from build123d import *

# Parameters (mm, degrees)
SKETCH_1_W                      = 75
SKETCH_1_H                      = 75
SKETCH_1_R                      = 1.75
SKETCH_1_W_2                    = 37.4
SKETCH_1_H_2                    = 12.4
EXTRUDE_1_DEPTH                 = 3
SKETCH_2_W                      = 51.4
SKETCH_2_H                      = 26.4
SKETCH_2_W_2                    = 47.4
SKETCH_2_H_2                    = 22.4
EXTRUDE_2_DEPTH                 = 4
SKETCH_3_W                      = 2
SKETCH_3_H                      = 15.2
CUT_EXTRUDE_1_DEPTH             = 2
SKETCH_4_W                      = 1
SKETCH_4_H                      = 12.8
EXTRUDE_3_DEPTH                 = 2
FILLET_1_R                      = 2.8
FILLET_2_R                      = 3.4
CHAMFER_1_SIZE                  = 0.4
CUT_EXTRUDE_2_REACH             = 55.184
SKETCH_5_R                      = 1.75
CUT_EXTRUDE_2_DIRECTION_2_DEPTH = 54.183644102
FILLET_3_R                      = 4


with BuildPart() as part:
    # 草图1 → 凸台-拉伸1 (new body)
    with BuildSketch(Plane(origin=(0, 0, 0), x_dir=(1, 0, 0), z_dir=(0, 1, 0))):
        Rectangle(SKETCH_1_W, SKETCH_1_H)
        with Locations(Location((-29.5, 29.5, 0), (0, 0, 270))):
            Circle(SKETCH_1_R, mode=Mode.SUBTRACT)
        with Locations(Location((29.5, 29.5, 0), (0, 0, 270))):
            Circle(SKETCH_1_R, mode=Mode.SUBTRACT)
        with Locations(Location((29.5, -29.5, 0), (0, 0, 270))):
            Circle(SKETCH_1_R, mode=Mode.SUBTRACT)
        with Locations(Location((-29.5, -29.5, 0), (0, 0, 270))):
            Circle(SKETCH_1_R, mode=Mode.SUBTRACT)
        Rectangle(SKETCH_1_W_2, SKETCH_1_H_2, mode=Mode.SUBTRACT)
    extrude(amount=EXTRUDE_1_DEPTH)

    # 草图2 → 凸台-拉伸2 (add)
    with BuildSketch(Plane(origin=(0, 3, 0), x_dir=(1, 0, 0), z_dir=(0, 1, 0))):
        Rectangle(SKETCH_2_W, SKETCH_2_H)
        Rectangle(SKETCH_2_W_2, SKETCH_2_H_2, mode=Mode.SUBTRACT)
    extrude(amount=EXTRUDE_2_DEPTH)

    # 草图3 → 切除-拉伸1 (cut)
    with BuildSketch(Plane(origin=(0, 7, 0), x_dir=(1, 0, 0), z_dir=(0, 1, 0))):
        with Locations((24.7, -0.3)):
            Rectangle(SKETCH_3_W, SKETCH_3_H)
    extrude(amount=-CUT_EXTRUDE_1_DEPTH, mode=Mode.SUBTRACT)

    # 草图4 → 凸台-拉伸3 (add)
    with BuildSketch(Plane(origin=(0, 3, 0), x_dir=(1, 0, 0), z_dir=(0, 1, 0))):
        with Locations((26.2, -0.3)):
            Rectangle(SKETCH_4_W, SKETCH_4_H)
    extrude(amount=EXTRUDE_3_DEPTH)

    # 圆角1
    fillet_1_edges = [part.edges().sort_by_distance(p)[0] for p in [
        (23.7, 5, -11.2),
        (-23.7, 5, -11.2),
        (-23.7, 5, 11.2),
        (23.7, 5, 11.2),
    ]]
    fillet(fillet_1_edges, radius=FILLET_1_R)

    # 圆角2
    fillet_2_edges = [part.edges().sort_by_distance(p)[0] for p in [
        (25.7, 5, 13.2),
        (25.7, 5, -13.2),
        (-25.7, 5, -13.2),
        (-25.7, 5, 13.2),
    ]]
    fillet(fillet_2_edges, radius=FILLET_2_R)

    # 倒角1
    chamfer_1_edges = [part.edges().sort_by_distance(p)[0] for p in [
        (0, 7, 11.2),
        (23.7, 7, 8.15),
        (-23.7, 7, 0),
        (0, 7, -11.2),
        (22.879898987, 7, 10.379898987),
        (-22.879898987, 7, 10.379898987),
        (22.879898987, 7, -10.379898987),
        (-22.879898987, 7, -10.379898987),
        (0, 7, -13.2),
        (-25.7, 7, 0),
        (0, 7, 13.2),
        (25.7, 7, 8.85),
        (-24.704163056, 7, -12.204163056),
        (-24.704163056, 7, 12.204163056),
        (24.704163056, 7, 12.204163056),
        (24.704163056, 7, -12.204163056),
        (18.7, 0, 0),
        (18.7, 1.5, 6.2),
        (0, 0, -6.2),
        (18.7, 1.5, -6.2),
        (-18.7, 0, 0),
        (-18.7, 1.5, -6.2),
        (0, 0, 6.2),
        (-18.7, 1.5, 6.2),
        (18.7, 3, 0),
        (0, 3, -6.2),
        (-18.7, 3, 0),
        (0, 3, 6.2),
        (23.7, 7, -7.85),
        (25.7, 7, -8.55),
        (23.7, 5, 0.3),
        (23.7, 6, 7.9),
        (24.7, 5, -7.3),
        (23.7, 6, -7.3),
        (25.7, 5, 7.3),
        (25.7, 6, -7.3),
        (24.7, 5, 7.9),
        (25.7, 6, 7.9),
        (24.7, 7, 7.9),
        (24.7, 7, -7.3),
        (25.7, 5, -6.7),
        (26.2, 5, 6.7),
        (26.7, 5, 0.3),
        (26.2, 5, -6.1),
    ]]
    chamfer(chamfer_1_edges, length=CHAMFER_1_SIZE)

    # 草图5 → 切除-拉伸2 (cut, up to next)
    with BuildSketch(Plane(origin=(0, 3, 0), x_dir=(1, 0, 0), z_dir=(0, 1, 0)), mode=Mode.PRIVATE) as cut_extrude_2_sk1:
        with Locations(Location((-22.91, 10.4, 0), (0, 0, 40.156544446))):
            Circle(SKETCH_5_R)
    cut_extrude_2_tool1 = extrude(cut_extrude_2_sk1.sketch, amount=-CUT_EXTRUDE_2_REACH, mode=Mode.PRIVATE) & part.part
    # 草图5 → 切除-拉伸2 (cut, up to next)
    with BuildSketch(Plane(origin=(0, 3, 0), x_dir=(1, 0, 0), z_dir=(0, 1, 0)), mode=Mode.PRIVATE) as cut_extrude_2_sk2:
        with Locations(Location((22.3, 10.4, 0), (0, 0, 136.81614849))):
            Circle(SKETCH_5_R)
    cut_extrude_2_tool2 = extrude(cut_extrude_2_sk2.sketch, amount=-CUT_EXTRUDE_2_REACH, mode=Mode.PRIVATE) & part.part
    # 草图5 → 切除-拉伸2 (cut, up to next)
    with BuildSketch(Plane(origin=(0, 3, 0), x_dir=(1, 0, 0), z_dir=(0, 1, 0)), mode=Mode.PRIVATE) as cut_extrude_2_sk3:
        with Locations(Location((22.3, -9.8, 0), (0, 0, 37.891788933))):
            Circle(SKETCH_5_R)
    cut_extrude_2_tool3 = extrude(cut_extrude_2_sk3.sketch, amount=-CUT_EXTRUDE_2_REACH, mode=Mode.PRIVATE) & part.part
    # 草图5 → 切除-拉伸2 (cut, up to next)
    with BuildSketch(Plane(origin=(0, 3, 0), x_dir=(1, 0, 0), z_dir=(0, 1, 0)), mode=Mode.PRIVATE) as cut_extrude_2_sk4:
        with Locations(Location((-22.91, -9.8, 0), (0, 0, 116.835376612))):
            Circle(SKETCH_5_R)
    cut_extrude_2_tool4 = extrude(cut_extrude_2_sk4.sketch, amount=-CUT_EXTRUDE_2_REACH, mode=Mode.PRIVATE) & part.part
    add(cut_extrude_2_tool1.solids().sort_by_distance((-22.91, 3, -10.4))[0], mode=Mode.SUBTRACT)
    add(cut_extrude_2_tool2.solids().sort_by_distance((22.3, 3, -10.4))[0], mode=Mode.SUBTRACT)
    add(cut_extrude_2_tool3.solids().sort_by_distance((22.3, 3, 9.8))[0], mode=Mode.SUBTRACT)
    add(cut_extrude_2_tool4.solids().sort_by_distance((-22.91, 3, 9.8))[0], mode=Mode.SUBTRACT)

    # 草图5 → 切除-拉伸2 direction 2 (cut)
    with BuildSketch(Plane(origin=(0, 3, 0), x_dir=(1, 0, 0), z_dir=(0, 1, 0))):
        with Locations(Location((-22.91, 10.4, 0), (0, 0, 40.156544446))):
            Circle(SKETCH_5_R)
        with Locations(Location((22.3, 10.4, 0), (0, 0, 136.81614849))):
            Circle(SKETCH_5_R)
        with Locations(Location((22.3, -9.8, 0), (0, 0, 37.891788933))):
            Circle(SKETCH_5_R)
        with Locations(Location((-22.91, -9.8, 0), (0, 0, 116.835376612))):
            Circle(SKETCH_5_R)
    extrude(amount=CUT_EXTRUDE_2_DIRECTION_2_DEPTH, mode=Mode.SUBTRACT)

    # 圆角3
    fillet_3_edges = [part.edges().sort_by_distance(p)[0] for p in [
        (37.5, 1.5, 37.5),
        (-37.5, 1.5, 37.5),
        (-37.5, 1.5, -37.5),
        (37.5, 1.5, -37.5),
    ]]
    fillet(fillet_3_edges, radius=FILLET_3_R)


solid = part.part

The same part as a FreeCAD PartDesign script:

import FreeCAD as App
import Part
import Sketcher


def edges_at(feature, points):
    """Names of the edges that pass closest to the given points."""
    edges = feature.Shape.Edges
    near = lambda p: min(range(len(edges)), key=lambda i: edges[i].distToShape(Part.Vertex(*p))[0])
    return sorted({f"Edge{near(p) + 1}" for p in points})


def add_polygon(sketch, points):
    """Adds a closed chain of lines whose ends are joined by coincident constraints."""
    first, n = sketch.GeometryCount, len(points)
    for a, b in zip(points, points[1:] + points[:1]):
        sketch.addGeometry(Part.LineSegment(App.Vector(*a, 0), App.Vector(*b, 0)), False)
    for i in range(n):
        sketch.addConstraint(Sketcher.Constraint("Coincident", first + i, 2, first + (i + 1) % n, 1))

doc = App.newDocument("Part")
body = doc.addObject("PartDesign::Body", "Body")

sketch1 = body.newObject("Sketcher::SketchObject", "Sketch")
sketch1.AttachmentSupport = (doc.getObject("XZ_Plane"), [""])
sketch1.MapMode = "FlatFace"
add_polygon(sketch1, [(-37.5, -37.5), (-37.5, 37.5), (37.5, 37.5), (37.5, -37.5)])
sketch1.addGeometry(Part.Circle(App.Vector(-29.5, 29.5, 0), App.Vector(0, 0, 1), 1.75), False)
sketch1.addGeometry(Part.Circle(App.Vector(29.5, 29.5, 0), App.Vector(0, 0, 1), 1.75), False)
sketch1.addGeometry(Part.Circle(App.Vector(-29.5, -29.5, 0), App.Vector(0, 0, 1), 1.75), False)
add_polygon(sketch1, [(18.7, 6.2), (-18.7, 6.2), (-18.7, -6.2), (18.7, -6.2)])
sketch1.addGeometry(Part.Circle(App.Vector(29.5, -29.5, 0), App.Vector(0, 0, 1), 1.75), False)
sketch1.addConstraint([
    Sketcher.Constraint("Vertical", 0),
    Sketcher.Constraint("Horizontal", 1),
    Sketcher.Constraint("Vertical", 2),
    Sketcher.Constraint("Horizontal", 3),
    Sketcher.Constraint("Horizontal", 7),
    Sketcher.Constraint("Vertical", 8),
    Sketcher.Constraint("Horizontal", 9),
    Sketcher.Constraint("Vertical", 10),
    Sketcher.Constraint("Equal", 4, 5),
    Sketcher.Constraint("Equal", 5, 6),
    Sketcher.Constraint("Equal", 6, 11),
    Sketcher.Constraint("Symmetric", 5, 3, 6, 3, -1, 1),
    Sketcher.Constraint("Symmetric", 4, 3, 11, 3, -1, 1),
    Sketcher.Constraint("Symmetric", 0, 2, 2, 2, -1, 1),
    Sketcher.Constraint("Symmetric", 7, 2, 9, 2, -1, 1),
    Sketcher.Constraint("Symmetric", 4, 3, 5, 3, -2),
    Sketcher.Constraint("Equal", 3, 0),
    Sketcher.Constraint("Diameter", 4, 3.5),
    Sketcher.Constraint("DistanceX", 1, 1, 1, 2, 75.0),
    Sketcher.Constraint("DistanceX", 7, 2, 7, 1, 37.4),
    Sketcher.Constraint("DistanceY", 8, 2, 8, 1, 12.4),
    Sketcher.Constraint("DistanceX", 4, 3, 5, 3, 59.0),
    Sketcher.Constraint("DistanceY", 6, 3, 4, 3, 59.0),
])
pad1 = body.newObject("PartDesign::Pad", "Pad")
pad1.Profile = sketch1
pad1.Length = 3
pad1.Reversed = True

sketch2 = body.newObject("Sketcher::SketchObject", "Sketch001")
sketch2.AttachmentSupport = (doc.getObject("XZ_Plane"), [""])
sketch2.MapMode = "FlatFace"
sketch2.AttachmentOffset = App.Placement(App.Vector(0, 0, -3), App.Rotation())
add_polygon(sketch2, [(-25.7, -13.2), (-25.7, 13.2), (25.7, 13.2), (25.7, -13.2)])
add_polygon(sketch2, [(23.7, 11.2), (-23.7, 11.2), (-23.7, -11.2), (23.7, -11.2)])
sketch2.addConstraint([
    Sketcher.Constraint("Vertical", 0),
    Sketcher.Constraint("Horizontal", 1),
    Sketcher.Constraint("Vertical", 2),
    Sketcher.Constraint("Horizontal", 3),
    Sketcher.Constraint("Horizontal", 4),
    Sketcher.Constraint("Vertical", 5),
    Sketcher.Constraint("Horizontal", 6),
    Sketcher.Constraint("Vertical", 7),
    Sketcher.Constraint("Symmetric", 0, 2, 2, 2, -1, 1),
    Sketcher.Constraint("Symmetric", 4, 2, 6, 2, -1, 1),
    Sketcher.Constraint("DistanceX", 1, 1, 1, 2, 51.4),
    Sketcher.Constraint("DistanceX", 4, 2, 4, 1, 47.4),
    Sketcher.Constraint("DistanceY", 0, 1, 0, 2, 26.4),
    Sketcher.Constraint("DistanceY", 5, 2, 5, 1, 22.4),
])
pad2 = body.newObject("PartDesign::Pad", "Pad001")
pad2.Profile = sketch2
pad2.Length = 4
pad2.Reversed = True

sketch3 = body.newObject("Sketcher::SketchObject", "Sketch002")
sketch3.AttachmentSupport = (doc.getObject("XZ_Plane"), [""])
sketch3.MapMode = "FlatFace"
sketch3.AttachmentOffset = App.Placement(App.Vector(0, 0, -7), App.Rotation())
add_polygon(sketch3, [(23.7, -7.3), (23.7, 7.9), (25.7, 7.9), (25.7, -7.3)])
sketch3.addConstraint([
    Sketcher.Constraint("Vertical", 0),
    Sketcher.Constraint("Horizontal", 1),
    Sketcher.Constraint("Vertical", 2),
    Sketcher.Constraint("Horizontal", 3),
    Sketcher.Constraint("DistanceX", 1, 1, 1, 2, 2.0),
    Sketcher.Constraint("DistanceY", 0, 1, 0, 2, 15.2),
    Sketcher.Constraint("DistanceX", -1, 1, 0, 2, 23.7),
    Sketcher.Constraint("DistanceY", -1, 1, 0, 2, 7.9),
])
pocket1 = body.newObject("PartDesign::Pocket", "Pocket")
pocket1.Profile = sketch3
pocket1.Length = 2
pocket1.Reversed = True

sketch4 = body.newObject("Sketcher::SketchObject", "Sketch003")
sketch4.AttachmentSupport = (doc.getObject("XZ_Plane"), [""])
sketch4.MapMode = "FlatFace"
sketch4.AttachmentOffset = App.Placement(App.Vector(0, 0, -3), App.Rotation())
add_polygon(sketch4, [(25.7, -6.1), (25.7, 6.7), (26.7, 6.7), (26.7, -6.1)])
sketch4.addConstraint([
    Sketcher.Constraint("Vertical", 0),
    Sketcher.Constraint("Horizontal", 1),
    Sketcher.Constraint("Vertical", 2),
    Sketcher.Constraint("Horizontal", 3),
    Sketcher.Constraint("DistanceX", 1, 1, 1, 2, 1.0),
    Sketcher.Constraint("DistanceY", 0, 1, 0, 2, 12.8),
    Sketcher.Constraint("DistanceX", -1, 1, 0, 2, 25.7),
    Sketcher.Constraint("DistanceY", -1, 1, 0, 2, 6.7),
])
pad3 = body.newObject("PartDesign::Pad", "Pad002")
pad3.Profile = sketch4
pad3.Length = 2
pad3.Reversed = True
doc.recompute()

fillet = body.newObject("PartDesign::Fillet", "Fillet")
fillet.Base = (pad3, edges_at(pad3, [
    (23.7, 5, -11.2),
    (-23.7, 5, -11.2),
    (-23.7, 5, 11.2),
    (23.7, 5, 11.2),
]))
fillet.Radius = 2.8
doc.recompute()

fillet2 = body.newObject("PartDesign::Fillet", "Fillet001")
fillet2.Base = (fillet, edges_at(fillet, [
    (25.7, 5, 13.2),
    (25.7, 5, -13.2),
    (-25.7, 5, -13.2),
    (-25.7, 5, 13.2),
]))
fillet2.Radius = 3.4
doc.recompute()

chamfer = body.newObject("PartDesign::Chamfer", "Chamfer")
chamfer.Base = (fillet2, edges_at(fillet2, [
    (0, 7, 11.2),
    (23.7, 7, 8.15),
    (-23.7, 7, 0),
    (0, 7, -11.2),
    (22.88, 7, 10.38),
    (-22.88, 7, 10.38),
    (22.88, 7, -10.38),
    (-22.88, 7, -10.38),
    (0, 7, -13.2),
    (-25.7, 7, 0),
    (0, 7, 13.2),
    (25.7, 7, 8.85),
    (-24.704, 7, -12.204),
    (-24.704, 7, 12.204),
    (24.704, 7, 12.204),
    (24.704, 7, -12.204),
    (18.7, 0, 0),
    (18.7, 1.5, 6.2),
    (0, 0, -6.2),
    (18.7, 1.5, -6.2),
    (-18.7, 0, 0),
    (-18.7, 1.5, -6.2),
    (0, 0, 6.2),
    (-18.7, 1.5, 6.2),
    (18.7, 3, 0),
    (0, 3, -6.2),
    (-18.7, 3, 0),
    (0, 3, 6.2),
    (23.7, 7, -7.85),
    (25.7, 7, -8.55),
    (23.7, 5, 0.3),
    (23.7, 6, 7.9),
    (24.7, 5, -7.3),
    (23.7, 6, -7.3),
    (25.7, 5, 7.3),
    (25.7, 6, -7.3),
    (24.7, 5, 7.9),
    (25.7, 6, 7.9),
    (24.7, 7, 7.9),
    (24.7, 7, -7.3),
    (25.7, 5, -6.7),
    (26.2, 5, 6.7),
    (26.7, 5, 0.3),
    (26.2, 5, -6.1),
]))
chamfer.Size = 0.4

sketch5 = body.newObject("Sketcher::SketchObject", "Sketch004")
sketch5.AttachmentSupport = (doc.getObject("XZ_Plane"), [""])
sketch5.MapMode = "FlatFace"
sketch5.AttachmentOffset = App.Placement(App.Vector(0, 0, -3), App.Rotation())
sketch5.addGeometry(Part.Circle(App.Vector(-22.91, -10.4, 0), App.Vector(0, 0, 1), 1.75), False)
sketch5.addConstraint([
    Sketcher.Constraint("Diameter", 0, 3.5),
    Sketcher.Constraint("DistanceY", 0, 3, -1, 1, 10.4),
    Sketcher.Constraint("DistanceX", 0, 3, -1, 1, 22.91),
])
pocket2 = body.newObject("PartDesign::Pocket", "Pocket001")
pocket2.Profile = sketch5
pocket2.Type = "UpToFirst"
pocket2.Reversed = True

sketch6 = body.newObject("Sketcher::SketchObject", "Sketch005")
sketch6.AttachmentSupport = (doc.getObject("XZ_Plane"), [""])
sketch6.MapMode = "FlatFace"
sketch6.AttachmentOffset = App.Placement(App.Vector(0, 0, -3), App.Rotation())
sketch6.addGeometry(Part.Circle(App.Vector(22.3, -10.4, 0), App.Vector(0, 0, 1), 1.75), False)
sketch6.addConstraint([
    Sketcher.Constraint("Diameter", 0, 3.5),
    Sketcher.Constraint("DistanceX", -1, 1, 0, 3, 22.3),
    Sketcher.Constraint("DistanceY", 0, 3, -1, 1, 10.4),
])
pocket3 = body.newObject("PartDesign::Pocket", "Pocket002")
pocket3.Profile = sketch6
pocket3.Type = "UpToFirst"
pocket3.Reversed = True

sketch7 = body.newObject("Sketcher::SketchObject", "Sketch006")
sketch7.AttachmentSupport = (doc.getObject("XZ_Plane"), [""])
sketch7.MapMode = "FlatFace"
sketch7.AttachmentOffset = App.Placement(App.Vector(0, 0, -3), App.Rotation())
sketch7.addGeometry(Part.Circle(App.Vector(22.3, 9.8, 0), App.Vector(0, 0, 1), 1.75), False)
sketch7.addConstraint([
    Sketcher.Constraint("Diameter", 0, 3.5),
    Sketcher.Constraint("DistanceX", -1, 1, 0, 3, 22.3),
    Sketcher.Constraint("DistanceY", -1, 1, 0, 3, 9.8),
])
pocket4 = body.newObject("PartDesign::Pocket", "Pocket003")
pocket4.Profile = sketch7
pocket4.Type = "UpToFirst"
pocket4.Reversed = True

sketch8 = body.newObject("Sketcher::SketchObject", "Sketch007")
sketch8.AttachmentSupport = (doc.getObject("XZ_Plane"), [""])
sketch8.MapMode = "FlatFace"
sketch8.AttachmentOffset = App.Placement(App.Vector(0, 0, -3), App.Rotation())
sketch8.addGeometry(Part.Circle(App.Vector(-22.91, 9.8, 0), App.Vector(0, 0, 1), 1.75), False)
sketch8.addConstraint([
    Sketcher.Constraint("Diameter", 0, 3.5),
    Sketcher.Constraint("DistanceY", -1, 1, 0, 3, 9.8),
    Sketcher.Constraint("DistanceX", 0, 3, -1, 1, 22.91),
])
pocket5 = body.newObject("PartDesign::Pocket", "Pocket004")
pocket5.Profile = sketch8
pocket5.Type = "UpToFirst"
pocket5.Reversed = True

sketch9 = body.newObject("Sketcher::SketchObject", "Sketch008")
sketch9.AttachmentSupport = (doc.getObject("XZ_Plane"), [""])
sketch9.MapMode = "FlatFace"
sketch9.AttachmentOffset = App.Placement(App.Vector(0, 0, -3), App.Rotation())
sketch9.addGeometry([
    Part.Circle(App.Vector(-22.91, -10.4, 0), App.Vector(0, 0, 1), 1.75),
    Part.Circle(App.Vector(22.3, -10.4, 0), App.Vector(0, 0, 1), 1.75),
    Part.Circle(App.Vector(22.3, 9.8, 0), App.Vector(0, 0, 1), 1.75),
    Part.Circle(App.Vector(-22.91, 9.8, 0), App.Vector(0, 0, 1), 1.75),
], False)
sketch9.addConstraint([
    Sketcher.Constraint("Equal", 0, 1),
    Sketcher.Constraint("Equal", 1, 2),
    Sketcher.Constraint("Equal", 2, 3),
    Sketcher.Constraint("Horizontal", 0, 3, 1, 3),
    Sketcher.Constraint("Horizontal", 2, 3, 3, 3),
    Sketcher.Constraint("Vertical", 1, 3, 2, 3),
    Sketcher.Constraint("Vertical", 0, 3, 3, 3),
    Sketcher.Constraint("Diameter", 0, 3.5),
    Sketcher.Constraint("DistanceY", 0, 3, -1, 1, 10.4),
    Sketcher.Constraint("DistanceX", -1, 1, 1, 3, 22.3),
    Sketcher.Constraint("DistanceY", -1, 1, 2, 3, 9.8),
    Sketcher.Constraint("DistanceX", 0, 3, -1, 1, 22.91),
])
pocket6 = body.newObject("PartDesign::Pocket", "Pocket005")
pocket6.Profile = sketch9
pocket6.Length = 54.183644
doc.recompute()

fillet3 = body.newObject("PartDesign::Fillet", "Fillet002")
fillet3.Base = (pocket6, edges_at(pocket6, [
    (37.5, 1.5, 37.5),
    (-37.5, 1.5, 37.5),
    (-37.5, 1.5, -37.5),
    (37.5, 1.5, -37.5),
]))
fillet3.Radius = 4

doc.recompute()
